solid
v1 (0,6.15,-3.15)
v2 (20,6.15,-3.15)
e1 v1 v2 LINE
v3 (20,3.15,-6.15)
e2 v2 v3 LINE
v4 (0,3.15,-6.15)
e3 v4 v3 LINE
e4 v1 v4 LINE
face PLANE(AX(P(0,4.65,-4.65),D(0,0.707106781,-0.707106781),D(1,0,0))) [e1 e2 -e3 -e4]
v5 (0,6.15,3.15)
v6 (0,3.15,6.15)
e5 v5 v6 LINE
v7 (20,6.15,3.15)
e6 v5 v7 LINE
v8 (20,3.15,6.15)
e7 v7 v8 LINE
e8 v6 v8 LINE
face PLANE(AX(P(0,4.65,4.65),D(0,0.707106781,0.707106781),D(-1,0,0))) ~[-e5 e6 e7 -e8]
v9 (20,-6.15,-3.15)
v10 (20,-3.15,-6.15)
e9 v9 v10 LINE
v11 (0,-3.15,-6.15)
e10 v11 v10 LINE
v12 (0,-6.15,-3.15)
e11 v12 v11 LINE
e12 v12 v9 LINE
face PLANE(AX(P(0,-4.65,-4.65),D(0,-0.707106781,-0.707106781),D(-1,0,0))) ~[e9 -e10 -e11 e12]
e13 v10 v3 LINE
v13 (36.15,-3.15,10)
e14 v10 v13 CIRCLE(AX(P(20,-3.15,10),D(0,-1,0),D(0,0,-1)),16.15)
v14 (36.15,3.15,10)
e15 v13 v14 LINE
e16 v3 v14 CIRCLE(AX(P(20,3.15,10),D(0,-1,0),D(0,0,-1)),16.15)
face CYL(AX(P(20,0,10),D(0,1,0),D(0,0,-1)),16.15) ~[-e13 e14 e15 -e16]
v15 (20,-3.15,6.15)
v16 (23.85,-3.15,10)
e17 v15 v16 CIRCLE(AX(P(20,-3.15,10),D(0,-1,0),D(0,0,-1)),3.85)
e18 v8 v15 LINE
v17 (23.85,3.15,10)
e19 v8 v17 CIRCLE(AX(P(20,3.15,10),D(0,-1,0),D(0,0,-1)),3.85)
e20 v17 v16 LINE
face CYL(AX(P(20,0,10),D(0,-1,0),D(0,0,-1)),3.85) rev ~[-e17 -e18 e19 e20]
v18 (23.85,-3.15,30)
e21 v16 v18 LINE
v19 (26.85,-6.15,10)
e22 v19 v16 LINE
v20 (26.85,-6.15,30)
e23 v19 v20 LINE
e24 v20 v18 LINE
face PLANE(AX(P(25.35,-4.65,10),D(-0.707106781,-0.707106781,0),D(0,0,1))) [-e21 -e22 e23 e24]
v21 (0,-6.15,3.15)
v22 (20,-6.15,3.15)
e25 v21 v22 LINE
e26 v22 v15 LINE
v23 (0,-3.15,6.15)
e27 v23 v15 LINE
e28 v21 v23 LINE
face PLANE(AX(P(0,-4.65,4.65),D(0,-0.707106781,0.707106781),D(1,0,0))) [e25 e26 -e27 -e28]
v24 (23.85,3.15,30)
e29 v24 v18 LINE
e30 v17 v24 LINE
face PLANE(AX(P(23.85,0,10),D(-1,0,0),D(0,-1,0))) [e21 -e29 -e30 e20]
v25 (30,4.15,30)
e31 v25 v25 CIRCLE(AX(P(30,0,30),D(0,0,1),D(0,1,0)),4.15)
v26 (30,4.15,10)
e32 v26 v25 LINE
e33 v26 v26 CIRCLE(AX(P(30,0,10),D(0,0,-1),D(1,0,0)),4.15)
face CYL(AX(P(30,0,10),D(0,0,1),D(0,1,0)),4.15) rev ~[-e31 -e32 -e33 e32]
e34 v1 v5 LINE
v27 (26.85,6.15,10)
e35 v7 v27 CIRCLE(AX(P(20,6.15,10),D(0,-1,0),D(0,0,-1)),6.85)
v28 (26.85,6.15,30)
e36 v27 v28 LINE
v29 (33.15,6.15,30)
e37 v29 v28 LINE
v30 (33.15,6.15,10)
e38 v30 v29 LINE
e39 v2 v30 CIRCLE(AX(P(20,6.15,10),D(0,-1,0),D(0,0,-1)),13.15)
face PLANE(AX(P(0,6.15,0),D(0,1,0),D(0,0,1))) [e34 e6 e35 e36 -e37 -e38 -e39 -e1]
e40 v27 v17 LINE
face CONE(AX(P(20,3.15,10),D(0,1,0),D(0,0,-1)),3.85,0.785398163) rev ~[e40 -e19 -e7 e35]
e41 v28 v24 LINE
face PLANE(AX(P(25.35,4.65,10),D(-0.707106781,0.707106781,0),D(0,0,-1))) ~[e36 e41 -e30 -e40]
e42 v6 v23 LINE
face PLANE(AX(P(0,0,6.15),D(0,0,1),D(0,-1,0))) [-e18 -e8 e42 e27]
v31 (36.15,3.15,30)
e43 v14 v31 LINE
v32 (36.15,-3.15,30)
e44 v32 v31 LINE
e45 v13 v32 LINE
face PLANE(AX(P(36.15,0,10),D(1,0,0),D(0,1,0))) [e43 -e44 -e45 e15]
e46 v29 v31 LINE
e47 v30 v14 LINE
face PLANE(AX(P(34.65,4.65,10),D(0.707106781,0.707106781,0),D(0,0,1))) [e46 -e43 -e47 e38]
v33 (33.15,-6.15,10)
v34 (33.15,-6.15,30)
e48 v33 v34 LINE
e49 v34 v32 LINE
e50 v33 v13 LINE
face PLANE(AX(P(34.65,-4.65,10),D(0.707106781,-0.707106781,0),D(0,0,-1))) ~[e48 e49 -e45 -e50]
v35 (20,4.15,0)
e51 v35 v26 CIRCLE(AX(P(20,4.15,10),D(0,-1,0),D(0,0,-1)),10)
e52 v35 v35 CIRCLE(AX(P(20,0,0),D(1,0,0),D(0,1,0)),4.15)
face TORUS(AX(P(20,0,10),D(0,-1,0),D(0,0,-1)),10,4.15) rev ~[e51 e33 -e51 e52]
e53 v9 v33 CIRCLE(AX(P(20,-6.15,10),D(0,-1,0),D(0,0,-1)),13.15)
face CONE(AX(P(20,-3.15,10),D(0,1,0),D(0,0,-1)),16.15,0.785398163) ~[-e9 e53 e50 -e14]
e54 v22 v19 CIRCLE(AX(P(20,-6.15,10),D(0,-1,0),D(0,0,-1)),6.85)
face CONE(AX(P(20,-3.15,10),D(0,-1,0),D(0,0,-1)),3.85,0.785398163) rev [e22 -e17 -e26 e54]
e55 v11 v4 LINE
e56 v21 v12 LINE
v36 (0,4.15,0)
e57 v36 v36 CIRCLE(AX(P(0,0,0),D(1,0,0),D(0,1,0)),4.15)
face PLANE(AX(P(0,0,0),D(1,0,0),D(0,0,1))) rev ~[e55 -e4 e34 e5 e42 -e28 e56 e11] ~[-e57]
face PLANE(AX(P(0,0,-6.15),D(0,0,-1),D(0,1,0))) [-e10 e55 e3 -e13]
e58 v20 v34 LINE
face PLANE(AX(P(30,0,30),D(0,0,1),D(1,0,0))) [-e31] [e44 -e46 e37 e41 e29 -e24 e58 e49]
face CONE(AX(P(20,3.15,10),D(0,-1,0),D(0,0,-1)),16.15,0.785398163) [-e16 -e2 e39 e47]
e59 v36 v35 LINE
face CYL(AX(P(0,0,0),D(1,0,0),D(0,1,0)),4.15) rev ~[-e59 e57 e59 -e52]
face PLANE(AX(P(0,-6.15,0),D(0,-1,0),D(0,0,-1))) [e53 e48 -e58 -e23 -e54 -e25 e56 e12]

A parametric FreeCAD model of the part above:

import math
import FreeCAD as App
import Part
import Sketcher
from FreeCAD import Vector
Q = App.Units.Quantity


def edges_at(feature, points):
    """Names of the edges that pass closest to the given points."""
    edges = feature.Shape.Edges
    near = lambda p: min(range(len(edges)), key=lambda i: edges[i].distToShape(Part.Vertex(*p))[0])
    return sorted({f"Edge{near(p) + 1}" for p in points})


def add_polygon(sketch, points):
    """Adds a closed chain of lines whose ends are joined by coincident constraints."""
    first, n = sketch.GeometryCount, len(points)
    for a, b in zip(points, points[1:] + points[:1]):
        sketch.addGeometry(Part.LineSegment(App.Vector(*a, 0), App.Vector(*b, 0)), False)
    for i in range(n):
        sketch.addConstraint(Sketcher.Constraint("Coincident", first + i, 2, first + (i + 1) % n, 1))

doc = App.newDocument("Part")
params = doc.addObject("Spreadsheet::Sheet", "Params")
for row, (alias, value) in enumerate([
    ("sketch1_diameter", "8.3 mm"),
    ("sketch1_width", "12.3 mm"),
    ("sketch2_radius", "10 mm"),
    ("sketch2_width", "20 mm"),
    ("chamfer_size", "3 mm"),
], start=1):
    params.set(f"A{row}", alias)
    params.set(f"B{row}", "=" + value)
    params.setAlias(f"B{row}", alias)

body = doc.addObject("PartDesign::Body", "Body")

# Sketch on YZ plane
sketch1 = body.newObject("Sketcher::SketchObject", "Sketch")
sketch1.AttachmentSupport = (doc.getObject("YZ_Plane"), [""])
sketch1.MapMode = "FlatFace"
add_polygon(sketch1, [(-6.2, 6.2), (-6.2, -6.2), (6.2, -6.2), (6.2, 6.2)])  # lines 0-3
sketch1.addGeometry(Part.Circle(Vector(0, 0, 0), Vector(0, 0, 1), 4.2), False)  # 4
sketch1.addConstraint(Sketcher.Constraint("Vertical", 0))
sketch1.addConstraint(Sketcher.Constraint("Horizontal", 1))
sketch1.addConstraint(Sketcher.Constraint("Vertical", 2))
sketch1.addConstraint(Sketcher.Constraint("Horizontal", 3))
sketch1.addConstraint(Sketcher.Constraint("Coincident", 4, 3, -1, 1))
sketch1.addConstraint(Sketcher.Constraint("Symmetric", 0, 2, 2, 2, -1, 1))
sketch1.addConstraint(Sketcher.Constraint("Equal", 3, 0))
sketch1.addConstraint(Sketcher.Constraint("Diameter", 4, Q("8.3 mm")))
sketch1.addConstraint(Sketcher.Constraint("DistanceX", 1, 1, 1, 2, Q("12.3 mm")))
sketch1.setExpression("Constraints[11]", "Params.sketch1_diameter")
sketch1.setExpression("Constraints[12]", "Params.sketch1_width")

# Sketch on XZ plane
sketch2 = body.newObject("Sketcher::SketchObject", "Sketch001")
sketch2.AttachmentSupport = (doc.getObject("XZ_Plane"), [""])
sketch2.MapMode = "FlatFace"
sketch2.addGeometry(Part.LineSegment(Vector(0, 0, 0), Vector(20, 0, 0)), False)
sketch2.addGeometry(Part.ArcOfCircle(Part.Circle(Vector(20, 10, 0), Vector(0, 0, 1), 10), math.radians(-90), math.radians(0)), False)
sketch2.addGeometry(Part.LineSegment(Vector(30, 10, 0), Vector(30, 30, 0)), False)
sketch2.addConstraint(Sketcher.Constraint("Tangent", 0, 2, 1, 1))
sketch2.addConstraint(Sketcher.Constraint("Tangent", 1, 2, 2, 1))
sketch2.addConstraint(Sketcher.Constraint("Horizontal", 0))
sketch2.addConstraint(Sketcher.Constraint("Vertical", 2))
sketch2.addConstraint(Sketcher.Constraint("Coincident", 0, 1, -1, 1))
sketch2.addConstraint(Sketcher.Constraint("Equal", 0, 2))
sketch2.addConstraint(Sketcher.Constraint("Radius", 1, Q("10 mm")))
sketch2.addConstraint(Sketcher.Constraint("DistanceX", 0, 1, 0, 2, Q("20 mm")))
sketch2.setExpression("Constraints[6]", "Params.sketch2_radius")
sketch2.setExpression("Constraints[7]", "Params.sketch2_width")
doc.recompute()

additivepipe = body.newObject("PartDesign::AdditivePipe", "AdditivePipe")
additivepipe.Profile = sketch1
additivepipe.Spine = (sketch2, ["Edge1", "Edge2", "Edge3"])
doc.recompute()

chamfer = body.newObject("PartDesign::Chamfer", "Chamfer")
chamfer.Base = (additivepipe, edges_at(additivepipe, [
    (23.85, -6.15, 20),
    (36.15, -6.15, 20),
    (36.15, 6.15, 20),
    (23.85, 6.15, 20),
]))
chamfer.setExpression("Size", "Params.chamfer_size")

doc.recompute()
